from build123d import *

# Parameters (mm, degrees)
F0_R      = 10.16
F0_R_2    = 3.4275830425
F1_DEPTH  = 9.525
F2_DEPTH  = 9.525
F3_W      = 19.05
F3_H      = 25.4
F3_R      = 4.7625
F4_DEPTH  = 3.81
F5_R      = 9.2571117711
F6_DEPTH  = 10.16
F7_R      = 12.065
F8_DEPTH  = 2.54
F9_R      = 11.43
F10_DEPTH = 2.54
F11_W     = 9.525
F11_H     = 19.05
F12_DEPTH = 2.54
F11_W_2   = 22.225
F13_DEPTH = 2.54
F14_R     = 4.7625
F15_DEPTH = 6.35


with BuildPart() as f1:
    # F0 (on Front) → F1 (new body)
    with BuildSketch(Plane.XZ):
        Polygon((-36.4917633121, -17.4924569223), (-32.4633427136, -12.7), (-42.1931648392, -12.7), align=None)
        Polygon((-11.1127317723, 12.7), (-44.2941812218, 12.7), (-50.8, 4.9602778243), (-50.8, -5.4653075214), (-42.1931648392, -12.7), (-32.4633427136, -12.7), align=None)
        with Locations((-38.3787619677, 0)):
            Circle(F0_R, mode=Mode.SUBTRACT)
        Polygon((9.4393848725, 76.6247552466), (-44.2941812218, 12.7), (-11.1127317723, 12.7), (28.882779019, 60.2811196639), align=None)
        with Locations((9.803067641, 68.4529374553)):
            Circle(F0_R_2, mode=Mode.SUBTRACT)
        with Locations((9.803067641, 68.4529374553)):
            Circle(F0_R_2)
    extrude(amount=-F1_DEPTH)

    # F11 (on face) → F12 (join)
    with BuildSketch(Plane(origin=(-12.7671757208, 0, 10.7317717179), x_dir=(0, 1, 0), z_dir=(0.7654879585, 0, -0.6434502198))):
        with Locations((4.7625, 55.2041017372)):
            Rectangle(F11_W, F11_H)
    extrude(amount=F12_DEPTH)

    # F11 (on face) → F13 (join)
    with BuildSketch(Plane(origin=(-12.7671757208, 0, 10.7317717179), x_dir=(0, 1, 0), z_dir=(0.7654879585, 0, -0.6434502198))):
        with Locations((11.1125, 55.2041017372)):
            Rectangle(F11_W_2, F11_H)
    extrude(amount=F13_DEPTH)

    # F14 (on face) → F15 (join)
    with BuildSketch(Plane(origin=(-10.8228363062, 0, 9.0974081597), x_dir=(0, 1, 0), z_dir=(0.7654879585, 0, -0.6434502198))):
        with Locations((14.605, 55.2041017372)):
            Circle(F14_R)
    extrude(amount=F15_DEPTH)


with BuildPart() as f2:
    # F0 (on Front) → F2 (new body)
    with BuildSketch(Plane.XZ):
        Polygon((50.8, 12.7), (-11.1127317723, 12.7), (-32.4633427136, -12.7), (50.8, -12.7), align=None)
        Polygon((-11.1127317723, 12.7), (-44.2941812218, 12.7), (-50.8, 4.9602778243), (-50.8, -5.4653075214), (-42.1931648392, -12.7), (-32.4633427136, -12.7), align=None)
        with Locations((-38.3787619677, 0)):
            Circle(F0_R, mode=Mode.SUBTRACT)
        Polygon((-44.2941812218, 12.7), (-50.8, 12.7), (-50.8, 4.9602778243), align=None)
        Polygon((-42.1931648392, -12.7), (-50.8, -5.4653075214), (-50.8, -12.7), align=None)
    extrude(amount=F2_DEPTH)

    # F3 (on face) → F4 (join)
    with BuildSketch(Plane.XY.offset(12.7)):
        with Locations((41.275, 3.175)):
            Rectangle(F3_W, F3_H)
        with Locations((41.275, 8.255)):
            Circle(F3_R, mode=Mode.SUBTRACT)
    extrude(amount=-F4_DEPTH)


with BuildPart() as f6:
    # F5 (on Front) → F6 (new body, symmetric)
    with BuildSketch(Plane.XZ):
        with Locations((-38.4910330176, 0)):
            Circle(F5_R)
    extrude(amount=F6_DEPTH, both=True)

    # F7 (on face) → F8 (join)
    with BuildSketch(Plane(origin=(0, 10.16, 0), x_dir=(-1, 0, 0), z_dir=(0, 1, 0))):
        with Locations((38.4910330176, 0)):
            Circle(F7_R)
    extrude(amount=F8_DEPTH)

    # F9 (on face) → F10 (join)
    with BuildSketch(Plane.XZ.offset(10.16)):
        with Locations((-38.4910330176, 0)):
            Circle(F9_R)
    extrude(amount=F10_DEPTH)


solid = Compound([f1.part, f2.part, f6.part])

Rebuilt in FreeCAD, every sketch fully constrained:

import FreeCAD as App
import Part
import Sketcher
Q = App.Units.Quantity

doc = App.newDocument("Part")
body = doc.addObject("PartDesign::Body", "Body")

# Sketch on XZ plane
sketch1 = body.newObject("Sketcher::SketchObject", "Sketch")
sketch1.AttachmentSupport = (doc.getObject("XZ_Plane"), [""])
sketch1.MapMode = "FlatFace"
sketch1.addGeometry(Part.LineSegment(App.Vector(-36.491763, -17.492457, 0), App.Vector(-32.463343, -12.7, 0)), False)
sketch1.addGeometry(Part.LineSegment(App.Vector(-32.463343, -12.7, 0), App.Vector(-11.112732, 12.7, 0)), False)
sketch1.addGeometry(Part.LineSegment(App.Vector(-11.112732, 12.7, 0), App.Vector(28.882779, 60.28112, 0)), False)
sketch1.addGeometry(Part.LineSegment(App.Vector(28.882779, 60.28112, 0), App.Vector(9.439385, 76.624755, 0)), False)
sketch1.addGeometry(Part.LineSegment(App.Vector(9.439385, 76.624755, 0), App.Vector(-44.294181, 12.7, 0)), False)
sketch1.addGeometry(Part.LineSegment(App.Vector(-44.294181, 12.7, 0), App.Vector(-50.8, 4.960278, 0)), False)
sketch1.addGeometry(Part.LineSegment(App.Vector(-50.8, 4.960278, 0), App.Vector(-50.8, -5.465308, 0)), False)
sketch1.addGeometry(Part.LineSegment(App.Vector(-50.8, -5.465308, 0), App.Vector(-42.193165, -12.7, 0)), False)
sketch1.addGeometry(Part.LineSegment(App.Vector(-42.193165, -12.7, 0), App.Vector(-36.491763, -17.492457, 0)), False)
sketch1.addGeometry(Part.Circle(App.Vector(-38.378762, 0, 0), App.Vector(0, 0, 1), 10.16), False)
sketch1.addConstraint(Sketcher.Constraint("Coincident", 0, 2, 1, 1))
sketch1.addConstraint(Sketcher.Constraint("Coincident", 1, 2, 2, 1))
sketch1.addConstraint(Sketcher.Constraint("Coincident", 2, 2, 3, 1))
sketch1.addConstraint(Sketcher.Constraint("Coincident", 3, 2, 4, 1))
sketch1.addConstraint(Sketcher.Constraint("Coincident", 4, 2, 5, 1))
sketch1.addConstraint(Sketcher.Constraint("Coincident", 5, 2, 6, 1))
sketch1.addConstraint(Sketcher.Constraint("Coincident", 6, 2, 7, 1))
sketch1.addConstraint(Sketcher.Constraint("Coincident", 7, 2, 8, 1))
sketch1.addConstraint(Sketcher.Constraint("Coincident", 8, 2, 0, 1))
sketch1.addConstraint(Sketcher.Constraint("Vertical", 6))
sketch1.addConstraint(Sketcher.Constraint("PointOnObject", 9, 3, -1))
sketch1.addConstraint(Sketcher.Constraint("Parallel", 0, 1))
sketch1.addConstraint(Sketcher.Constraint("Parallel", 1, 2))
sketch1.addConstraint(Sketcher.Constraint("Perpendicular", 2, 3))
sketch1.addConstraint(Sketcher.Constraint("Perpendicular", 3, 4))
sketch1.addConstraint(Sketcher.Constraint("Parallel", 4, 5))
sketch1.addConstraint(Sketcher.Constraint("Perpendicular", 5, 7))
sketch1.addConstraint(Sketcher.Constraint("Parallel", 7, 8))
sketch1.addConstraint(Sketcher.Constraint("Horizontal", 1, 2, 4, 2))
sketch1.addConstraint(Sketcher.Constraint("Horizontal", 0, 2, 7, 2))
sketch1.addConstraint(Sketcher.Constraint("Diameter", 9, Q("0.8 in")))
sketch1.addConstraint(Sketcher.Constraint("Distance", 3, Q("1 in")))
sketch1.addConstraint(Sketcher.Constraint("DistanceX", 5, 2, -1, 1, Q("2 in")))
sketch1.addConstraint(Sketcher.Constraint("DistanceY", 0, 2, 1, 2, Q("1 in")))
sketch1.addConstraint(Sketcher.Constraint("DistanceY", 0, 2, -1, 1, Q("0.5 in")))
sketch1.addConstraint(Sketcher.Constraint("DistanceX", 7, 2, 8, 2, 5.701402))
sketch1.addConstraint(Sketcher.Constraint("DistanceX", 9, 3, 8, 2, 1.886999))
sketch1.addConstraint(Sketcher.Constraint("Distance", 1, 33.181449))
sketch1.addConstraint(Sketcher.Constraint("DistanceY", 6, 2, 6, 1, 10.425585))
sketch1.addConstraint(Sketcher.Constraint("DistanceX", -1, 1, 2, 2, 28.882779))
pad1 = body.newObject("PartDesign::Pad", "Pad")
pad1.Profile = sketch1
pad1.Length = Q("0.375 in")
pad1.Reversed = True

# Sketch on an angled plane
sketch2 = body.newObject("Sketcher::SketchObject", "Sketch001")
sketch2.Placement = App.Placement(App.Vector(-12.767176, 0, 10.731772), App.Rotation(App.Vector(0, 1, 0), App.Vector(0.64345022, 0, 0.765487959), App.Vector(0.765487959, 0, -0.64345022), "ZXY"))
sketch2.addGeometry(Part.LineSegment(App.Vector(0, 64.729102, 0), App.Vector(0, 45.679102, 0)), False)
sketch2.addGeometry(Part.LineSegment(App.Vector(0, 45.679102, 0), App.Vector(9.525, 45.679102, 0)), False)
sketch2.addGeometry(Part.LineSegment(App.Vector(9.525, 45.679102, 0), App.Vector(9.525, 64.729102, 0)), False)
sketch2.addGeometry(Part.LineSegment(App.Vector(9.525, 64.729102, 0), App.Vector(0, 64.729102, 0)), False)
sketch2.addConstraint(Sketcher.Constraint("Coincident", 0, 2, 1, 1))
sketch2.addConstraint(Sketcher.Constraint("Coincident", 1, 2, 2, 1))
sketch2.addConstraint(Sketcher.Constraint("Coincident", 2, 2, 3, 1))
sketch2.addConstraint(Sketcher.Constraint("Coincident", 3, 2, 0, 1))
sketch2.addConstraint(Sketcher.Constraint("Vertical", 0))
sketch2.addConstraint(Sketcher.Constraint("Horizontal", 1))
sketch2.addConstraint(Sketcher.Constraint("Vertical", 2))
sketch2.addConstraint(Sketcher.Constraint("Horizontal", 3))
sketch2.addConstraint(Sketcher.Constraint("PointOnObject", 0, 2, -2))
sketch2.addConstraint(Sketcher.Constraint("DistanceY", 0, 2, 0, 1, Q("0.75 in")))
sketch2.addConstraint(Sketcher.Constraint("DistanceX", 1, 1, 1, 2, Q("0.375 in")))
sketch2.addConstraint(Sketcher.Constraint("DistanceY", -1, 1, 0, 2, 45.679102))
pad2 = body.newObject("PartDesign::Pad", "Pad001")
pad2.Profile = sketch2
pad2.Length = Q("0.1 in")

# Sketch on an angled plane
sketch3 = body.newObject("Sketcher::SketchObject", "Sketch002")
sketch3.Placement = App.Placement(App.Vector(-12.767176, 0, 10.731772), App.Rotation(App.Vector(0, 1, 0), App.Vector(0.64345022, 0, 0.765487959), App.Vector(0.765487959, 0, -0.64345022), "ZXY"))
sketch3.addGeometry(Part.LineSegment(App.Vector(0, 64.729102, 0), App.Vector(0, 45.679102, 0)), False)
sketch3.addGeometry(Part.LineSegment(App.Vector(0, 45.679102, 0), App.Vector(22.225, 45.679102, 0)), False)
sketch3.addGeometry(Part.LineSegment(App.Vector(22.225, 45.679102, 0), App.Vector(22.225, 64.729102, 0)), False)
sketch3.addGeometry(Part.LineSegment(App.Vector(22.225, 64.729102, 0), App.Vector(0, 64.729102, 0)), False)
sketch3.addConstraint(Sketcher.Constraint("Coincident", 0, 2, 1, 1))
sketch3.addConstraint(Sketcher.Constraint("Coincident", 1, 2, 2, 1))
sketch3.addConstraint(Sketcher.Constraint("Coincident", 2, 2, 3, 1))
sketch3.addConstraint(Sketcher.Constraint("Coincident", 3, 2, 0, 1))
sketch3.addConstraint(Sketcher.Constraint("Vertical", 0))
sketch3.addConstraint(Sketcher.Constraint("Horizontal", 1))
sketch3.addConstraint(Sketcher.Constraint("Vertical", 2))
sketch3.addConstraint(Sketcher.Constraint("Horizontal", 3))
sketch3.addConstraint(Sketcher.Constraint("PointOnObject", 0, 2, -2))
sketch3.addConstraint(Sketcher.Constraint("DistanceY", 0, 2, 0, 1, Q("0.75 in")))
sketch3.addConstraint(Sketcher.Constraint("DistanceX", 1, 1, 1, 2, Q("0.875 in")))
sketch3.addConstraint(Sketcher.Constraint("DistanceY", -1, 1, 0, 2, 45.679102))
pad3 = body.newObject("PartDesign::Pad", "Pad002")
pad3.Profile = sketch3
pad3.Length = Q("0.1 in")

# Sketch on an angled plane
sketch4 = body.newObject("Sketcher::SketchObject", "Sketch003")
sketch4.Placement = App.Placement(App.Vector(-10.822836, 0, 9.097408), App.Rotation(App.Vector(0, 1, 0), App.Vector(0.64345022, 0, 0.765487959), App.Vector(0.765487959, 0, -0.64345022), "ZXY"))
sketch4.addGeometry(Part.Circle(App.Vector(14.605, 55.204102, 0), App.Vector(0, 0, 1), 4.7625), False)
sketch4.addConstraint(Sketcher.Constraint("Diameter", 0, Q("0.375 in")))
sketch4.addConstraint(Sketcher.Constraint("DistanceX", -1, 1, 0, 3, Q("0.575 in")))
sketch4.addConstraint(Sketcher.Constraint("DistanceY", -1, 1, 0, 3, 55.204102))
pad4 = body.newObject("PartDesign::Pad", "Pad003")
pad4.Profile = sketch4
pad4.Length = Q("0.25 in")
body2 = doc.addObject("PartDesign::Body", "Body001")

# Sketch on XZ plane
sketch5 = body2.newObject("Sketcher::SketchObject", "Sketch004")
sketch5.AttachmentSupport = (doc.getObject("XZ_Plane001"), [""])
sketch5.MapMode = "FlatFace"
sketch5.addGeometry(Part.LineSegment(App.Vector(50.8, 12.7, 0), App.Vector(-50.8, 12.7, 0)), False)
sketch5.addGeometry(Part.LineSegment(App.Vector(-50.8, 12.7, 0), App.Vector(-50.8, -12.7, 0)), False)
sketch5.addGeometry(Part.LineSegment(App.Vector(-50.8, -12.7, 0), App.Vector(50.8, -12.7, 0)), False)
sketch5.addGeometry(Part.LineSegment(App.Vector(50.8, -12.7, 0), App.Vector(50.8, 12.7, 0)), False)
sketch5.addGeometry(Part.Circle(App.Vector(-38.378762, 0, 0), App.Vector(0, 0, 1), 10.16), False)
sketch5.addConstraint(Sketcher.Constraint("Coincident", 0, 2, 1, 1))
sketch5.addConstraint(Sketcher.Constraint("Coincident", 1, 2, 2, 1))
sketch5.addConstraint(Sketcher.Constraint("Coincident", 2, 2, 3, 1))
sketch5.addConstraint(Sketcher.Constraint("Coincident", 3, 2, 0, 1))
sketch5.addConstraint(Sketcher.Constraint("Horizontal", 0))
sketch5.addConstraint(Sketcher.Constraint("Vertical", 1))
sketch5.addConstraint(Sketcher.Constraint("Horizontal", 2))
sketch5.addConstraint(Sketcher.Constraint("Vertical", 3))
sketch5.addConstraint(Sketcher.Constraint("Symmetric", 0, 2, 2, 2, -1, 1))
sketch5.addConstraint(Sketcher.Constraint("PointOnObject", 4, 3, -1))
sketch5.addConstraint(Sketcher.Constraint("Diameter", 4, Q("0.8 in")))
sketch5.addConstraint(Sketcher.Constraint("DistanceX", 0, 2, 0, 1, Q("4 in")))
sketch5.addConstraint(Sketcher.Constraint("DistanceY", 1, 2, 1, 1, Q("1 in")))
sketch5.addConstraint(Sketcher.Constraint("DistanceX", 4, 3, -1, 1, 38.378762))
pad5 = body2.newObject("PartDesign::Pad", "Pad004")
pad5.Profile = sketch5
pad5.Length = Q("0.375 in")

# Sketch on XY plane
sketch6 = body2.newObject("Sketcher::SketchObject", "Sketch005")
sketch6.AttachmentSupport = (doc.getObject("XY_Plane001"), [""])
sketch6.MapMode = "FlatFace"
sketch6.AttachmentOffset = App.Placement(App.Vector(0, 0, 0.5 * 25.4), App.Rotation())
sketch6.addGeometry(Part.LineSegment(App.Vector(31.75, 15.875, 0), App.Vector(31.75, -9.525, 0)), False)
sketch6.addGeometry(Part.LineSegment(App.Vector(31.75, -9.525, 0), App.Vector(50.8, -9.525, 0)), False)
sketch6.addGeometry(Part.LineSegment(App.Vector(50.8, -9.525, 0), App.Vector(50.8, 15.875, 0)), False)
sketch6.addGeometry(Part.LineSegment(App.Vector(50.8, 15.875, 0), App.Vector(31.75, 15.875, 0)), False)
sketch6.addGeometry(Part.Circle(App.Vector(41.275, 8.255, 0), App.Vector(0, 0, 1), 4.7625), False)
sketch6.addConstraint(Sketcher.Constraint("Coincident", 0, 2, 1, 1))
sketch6.addConstraint(Sketcher.Constraint("Coincident", 1, 2, 2, 1))
sketch6.addConstraint(Sketcher.Constraint("Coincident", 2, 2, 3, 1))
sketch6.addConstraint(Sketcher.Constraint("Coincident", 3, 2, 0, 1))
sketch6.addConstraint(Sketcher.Constraint("Vertical", 0))
sketch6.addConstraint(Sketcher.Constraint("Horizontal", 1))
sketch6.addConstraint(Sketcher.Constraint("Vertical", 2))
sketch6.addConstraint(Sketcher.Constraint("Horizontal", 3))
sketch6.addConstraint(Sketcher.Constraint("DistanceY", 0, 2, 0, 1, Q("1 in")))
sketch6.addConstraint(Sketcher.Constraint("Diameter", 4, Q("0.375 in")))
sketch6.addConstraint(Sketcher.Constraint("DistanceX", -1, 1, 1, 2, Q("2 in")))
sketch6.addConstraint(Sketcher.Constraint("DistanceX", 1, 1, 1, 2, Q("0.75 in")))
sketch6.addConstraint(Sketcher.Constraint("DistanceY", 0, 2, 4, 3, Q("0.7 in")))
sketch6.addConstraint(Sketcher.Constraint("DistanceX", -1, 1, 4, 3, Q("1.625 in")))
sketch6.addConstraint(Sketcher.Constraint("DistanceY", -1, 1, 4, 3, Q("0.325 in")))
pad6 = body2.newObject("PartDesign::Pad", "Pad005")
pad6.Profile = sketch6
pad6.Length = Q("0.15 in")
pad6.Reversed = True
body3 = doc.addObject("PartDesign::Body", "Body002")

# Sketch on XZ plane
sketch7 = body3.newObject("Sketcher::SketchObject", "Sketch006")
sketch7.AttachmentSupport = (doc.getObject("XZ_Plane002"), [""])
sketch7.MapMode = "FlatFace"
sketch7.addGeometry(Part.Circle(App.Vector(-38.491033, 0, 0), App.Vector(0, 0, 1), 9.257112), False)
sketch7.addConstraint(Sketcher.Constraint("PointOnObject", 0, 3, -1))
sketch7.addConstraint(Sketcher.Constraint("Diameter", 0, 18.514224))
sketch7.addConstraint(Sketcher.Constraint("DistanceX", 0, 3, -1, 1, 38.491033))
pad7 = body3.newObject("PartDesign::Pad", "Pad006")
pad7.Profile = sketch7
pad7.Length = Q("0.8 in")
pad7.Midplane = True

# Sketch on XZ plane
sketch8 = body3.newObject("Sketcher::SketchObject", "Sketch007")
sketch8.AttachmentSupport = (doc.getObject("XZ_Plane002"), [""])
sketch8.MapMode = "FlatFace"
sketch8.AttachmentOffset = App.Placement(App.Vector(0, 0, -0.4 * 25.4), App.Rotation())
sketch8.addGeometry(Part.Circle(App.Vector(-38.491033, 0, 0), App.Vector(0, 0, 1), 12.065), False)
sketch8.addConstraint(Sketcher.Constraint("PointOnObject", 0, 3, -1))
sketch8.addConstraint(Sketcher.Constraint("Diameter", 0, Q("0.95 in")))
sketch8.addConstraint(Sketcher.Constraint("DistanceX", 0, 3, -1, 1, 38.491033))
pad8 = body3.newObject("PartDesign::Pad", "Pad007")
pad8.Profile = sketch8
pad8.Length = Q("0.1 in")
pad8.Reversed = True

# Sketch on XZ plane
sketch9 = body3.newObject("Sketcher::SketchObject", "Sketch008")
sketch9.AttachmentSupport = (doc.getObject("XZ_Plane002"), [""])
sketch9.MapMode = "FlatFace"
sketch9.AttachmentOffset = App.Placement(App.Vector(0, 0, 0.4 * 25.4), App.Rotation())
sketch9.addGeometry(Part.Circle(App.Vector(-38.491033, 0, 0), App.Vector(0, 0, 1), 11.43), False)
sketch9.addConstraint(Sketcher.Constraint("PointOnObject", 0, 3, -1))
sketch9.addConstraint(Sketcher.Constraint("Diameter", 0, Q("0.9 in")))
sketch9.addConstraint(Sketcher.Constraint("DistanceX", 0, 3, -1, 1, 38.491033))
pad9 = body3.newObject("PartDesign::Pad", "Pad008")
pad9.Profile = sketch9
pad9.Length = Q("0.1 in")

doc.recompute()
